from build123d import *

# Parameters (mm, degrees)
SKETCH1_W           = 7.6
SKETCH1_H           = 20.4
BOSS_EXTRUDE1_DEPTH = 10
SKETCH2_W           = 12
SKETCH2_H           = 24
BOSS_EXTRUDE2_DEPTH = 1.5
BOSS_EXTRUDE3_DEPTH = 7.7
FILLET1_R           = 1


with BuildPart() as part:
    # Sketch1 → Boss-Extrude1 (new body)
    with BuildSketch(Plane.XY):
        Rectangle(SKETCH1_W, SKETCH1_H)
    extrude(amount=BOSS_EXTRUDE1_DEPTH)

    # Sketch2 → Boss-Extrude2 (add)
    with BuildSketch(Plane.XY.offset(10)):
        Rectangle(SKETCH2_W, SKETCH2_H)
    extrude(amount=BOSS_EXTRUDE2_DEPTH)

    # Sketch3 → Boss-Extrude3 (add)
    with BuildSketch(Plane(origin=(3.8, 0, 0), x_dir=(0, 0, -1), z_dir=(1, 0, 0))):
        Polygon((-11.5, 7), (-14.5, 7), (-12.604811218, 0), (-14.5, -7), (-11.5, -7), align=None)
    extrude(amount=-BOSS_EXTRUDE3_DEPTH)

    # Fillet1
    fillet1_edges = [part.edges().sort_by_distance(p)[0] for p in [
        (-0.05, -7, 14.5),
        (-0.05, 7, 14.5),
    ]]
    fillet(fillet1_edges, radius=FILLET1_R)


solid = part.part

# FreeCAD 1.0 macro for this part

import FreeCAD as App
import Part
import Sketcher
from FreeCAD import Vector


def edges_at(feature, points):
    """Names of the edges that pass closest to the given points."""
    edges = feature.Shape.Edges
    near = lambda p: min(range(len(edges)), key=lambda i: edges[i].distToShape(Part.Vertex(*p))[0])
    return sorted({f"Edge{near(p) + 1}" for p in points})


def add_polygon(sketch, points):
    """Adds a closed chain of lines whose ends are joined by coincident constraints."""
    first, n = sketch.GeometryCount, len(points)
    for a, b in zip(points, points[1:] + points[:1]):
        sketch.addGeometry(Part.LineSegment(App.Vector(*a, 0), App.Vector(*b, 0)), False)
    for i in range(n):
        sketch.addConstraint(Sketcher.Constraint("Coincident", first + i, 2, first + (i + 1) % n, 1))

doc = App.newDocument("Part")
body = doc.addObject("PartDesign::Body", "Body")

sketch1 = doc.addObject("Sketcher::SketchObject", "Sketch")
body.addObject(sketch1)
sketch1.AttachmentSupport = (doc.XY_Plane, [""])
sketch1.MapMode = "FlatFace"
add_polygon(sketch1, [(-4, 10), (-4, -10), (4, -10), (4, 10)])
sketch1.addConstraint(Sketcher.Constraint("Vertical", 0))
sketch1.addConstraint(Sketcher.Constraint("Horizontal", 1))
sketch1.addConstraint(Sketcher.Constraint("Vertical", 2))
sketch1.addConstraint(Sketcher.Constraint("Horizontal", 3))
sketch1.addConstraint(Sketcher.Constraint("Symmetric", 0, 2, 2, 2, -1, 1))
sketch1.addConstraint(Sketcher.Constraint("DistanceX", 1, 1, 1, 2, 7.6))
sketch1.addConstraint(Sketcher.Constraint("DistanceY", 0, 2, 0, 1, 20.4))
pad1 = doc.addObject("PartDesign::Pad", "Pad")
body.addObject(pad1)
pad1.Profile = sketch1
pad1.Length = 10

sketch2 = doc.addObject("Sketcher::SketchObject", "Sketch001")
body.addObject(sketch2)
sketch2.AttachmentSupport = (doc.XY_Plane, [""])
sketch2.MapMode = "FlatFace"
sketch2.AttachmentOffset = App.Placement(Vector(0, 0, 10), App.Rotation())
add_polygon(sketch2, [(-6, 12), (-6, -12), (6, -12), (6, 12)])
sketch2.addConstraint(Sketcher.Constraint("Vertical", 0))
sketch2.addConstraint(Sketcher.Constraint("Horizontal", 1))
sketch2.addConstraint(Sketcher.Constraint("Vertical", 2))
sketch2.addConstraint(Sketcher.Constraint("Horizontal", 3))
sketch2.addConstraint(Sketcher.Constraint("Symmetric", 0, 2, 2, 2, -1, 1))
sketch2.addConstraint(Sketcher.Constraint("DistanceX", 1, 1, 1, 2, 12.0))
sketch2.addConstraint(Sketcher.Constraint("DistanceY", 0, 2, 0, 1, 24.0))
pad2 = doc.addObject("PartDesign::Pad", "Pad001")
body.addObject(pad2)
pad2.Profile = sketch2
pad2.Length = 1.5

sketch3 = doc.addObject("Sketcher::SketchObject", "Sketch002")
body.addObject(sketch3)
sketch3.AttachmentSupport = (doc.YZ_Plane, [""])
sketch3.MapMode = "FlatFace"
sketch3.AttachmentOffset = App.Placement(Vector(0, 0, 3.8), App.Rotation())
add_polygon(sketch3, [(7, 11.5), (7, 14.5), (0, 12.6), (-7, 14.5), (-7, 11.5)])
sketch3.addConstraint(Sketcher.Constraint("Vertical", 0))
sketch3.addConstraint(Sketcher.Constraint("Vertical", 3))
sketch3.addConstraint(Sketcher.Constraint("Horizontal", 4))
sketch3.addConstraint(Sketcher.Constraint("Symmetric", 0, 2, 2, 2, -2))
sketch3.addConstraint(Sketcher.Constraint("PointOnObject", 1, 2, -2))
sketch3.addConstraint(Sketcher.Constraint("DistanceX", 4, 1, 4, 2, 14.0))
sketch3.addConstraint(Sketcher.Constraint("DistanceY", 0, 1, 0, 2, 3.0))
sketch3.addConstraint(Sketcher.Constraint("DistanceY", -1, 1, 0, 2, 14.5))
sketch3.addConstraint(Sketcher.Constraint("DistanceY", -1, 1, 1, 2, 12.604811))
pad3 = doc.addObject("PartDesign::Pad", "Pad002")
body.addObject(pad3)
pad3.Profile = sketch3
pad3.Length = 7.7
pad3.Reversed = True
doc.recompute()

fillet = doc.addObject("PartDesign::Fillet", "Fillet")
body.addObject(fillet)
fillet.Base = (pad3, edges_at(pad3, [(-0.05, -7, 14.5), (-0.05, 7, 14.5)]))
fillet.Radius = 1

doc.recompute()
